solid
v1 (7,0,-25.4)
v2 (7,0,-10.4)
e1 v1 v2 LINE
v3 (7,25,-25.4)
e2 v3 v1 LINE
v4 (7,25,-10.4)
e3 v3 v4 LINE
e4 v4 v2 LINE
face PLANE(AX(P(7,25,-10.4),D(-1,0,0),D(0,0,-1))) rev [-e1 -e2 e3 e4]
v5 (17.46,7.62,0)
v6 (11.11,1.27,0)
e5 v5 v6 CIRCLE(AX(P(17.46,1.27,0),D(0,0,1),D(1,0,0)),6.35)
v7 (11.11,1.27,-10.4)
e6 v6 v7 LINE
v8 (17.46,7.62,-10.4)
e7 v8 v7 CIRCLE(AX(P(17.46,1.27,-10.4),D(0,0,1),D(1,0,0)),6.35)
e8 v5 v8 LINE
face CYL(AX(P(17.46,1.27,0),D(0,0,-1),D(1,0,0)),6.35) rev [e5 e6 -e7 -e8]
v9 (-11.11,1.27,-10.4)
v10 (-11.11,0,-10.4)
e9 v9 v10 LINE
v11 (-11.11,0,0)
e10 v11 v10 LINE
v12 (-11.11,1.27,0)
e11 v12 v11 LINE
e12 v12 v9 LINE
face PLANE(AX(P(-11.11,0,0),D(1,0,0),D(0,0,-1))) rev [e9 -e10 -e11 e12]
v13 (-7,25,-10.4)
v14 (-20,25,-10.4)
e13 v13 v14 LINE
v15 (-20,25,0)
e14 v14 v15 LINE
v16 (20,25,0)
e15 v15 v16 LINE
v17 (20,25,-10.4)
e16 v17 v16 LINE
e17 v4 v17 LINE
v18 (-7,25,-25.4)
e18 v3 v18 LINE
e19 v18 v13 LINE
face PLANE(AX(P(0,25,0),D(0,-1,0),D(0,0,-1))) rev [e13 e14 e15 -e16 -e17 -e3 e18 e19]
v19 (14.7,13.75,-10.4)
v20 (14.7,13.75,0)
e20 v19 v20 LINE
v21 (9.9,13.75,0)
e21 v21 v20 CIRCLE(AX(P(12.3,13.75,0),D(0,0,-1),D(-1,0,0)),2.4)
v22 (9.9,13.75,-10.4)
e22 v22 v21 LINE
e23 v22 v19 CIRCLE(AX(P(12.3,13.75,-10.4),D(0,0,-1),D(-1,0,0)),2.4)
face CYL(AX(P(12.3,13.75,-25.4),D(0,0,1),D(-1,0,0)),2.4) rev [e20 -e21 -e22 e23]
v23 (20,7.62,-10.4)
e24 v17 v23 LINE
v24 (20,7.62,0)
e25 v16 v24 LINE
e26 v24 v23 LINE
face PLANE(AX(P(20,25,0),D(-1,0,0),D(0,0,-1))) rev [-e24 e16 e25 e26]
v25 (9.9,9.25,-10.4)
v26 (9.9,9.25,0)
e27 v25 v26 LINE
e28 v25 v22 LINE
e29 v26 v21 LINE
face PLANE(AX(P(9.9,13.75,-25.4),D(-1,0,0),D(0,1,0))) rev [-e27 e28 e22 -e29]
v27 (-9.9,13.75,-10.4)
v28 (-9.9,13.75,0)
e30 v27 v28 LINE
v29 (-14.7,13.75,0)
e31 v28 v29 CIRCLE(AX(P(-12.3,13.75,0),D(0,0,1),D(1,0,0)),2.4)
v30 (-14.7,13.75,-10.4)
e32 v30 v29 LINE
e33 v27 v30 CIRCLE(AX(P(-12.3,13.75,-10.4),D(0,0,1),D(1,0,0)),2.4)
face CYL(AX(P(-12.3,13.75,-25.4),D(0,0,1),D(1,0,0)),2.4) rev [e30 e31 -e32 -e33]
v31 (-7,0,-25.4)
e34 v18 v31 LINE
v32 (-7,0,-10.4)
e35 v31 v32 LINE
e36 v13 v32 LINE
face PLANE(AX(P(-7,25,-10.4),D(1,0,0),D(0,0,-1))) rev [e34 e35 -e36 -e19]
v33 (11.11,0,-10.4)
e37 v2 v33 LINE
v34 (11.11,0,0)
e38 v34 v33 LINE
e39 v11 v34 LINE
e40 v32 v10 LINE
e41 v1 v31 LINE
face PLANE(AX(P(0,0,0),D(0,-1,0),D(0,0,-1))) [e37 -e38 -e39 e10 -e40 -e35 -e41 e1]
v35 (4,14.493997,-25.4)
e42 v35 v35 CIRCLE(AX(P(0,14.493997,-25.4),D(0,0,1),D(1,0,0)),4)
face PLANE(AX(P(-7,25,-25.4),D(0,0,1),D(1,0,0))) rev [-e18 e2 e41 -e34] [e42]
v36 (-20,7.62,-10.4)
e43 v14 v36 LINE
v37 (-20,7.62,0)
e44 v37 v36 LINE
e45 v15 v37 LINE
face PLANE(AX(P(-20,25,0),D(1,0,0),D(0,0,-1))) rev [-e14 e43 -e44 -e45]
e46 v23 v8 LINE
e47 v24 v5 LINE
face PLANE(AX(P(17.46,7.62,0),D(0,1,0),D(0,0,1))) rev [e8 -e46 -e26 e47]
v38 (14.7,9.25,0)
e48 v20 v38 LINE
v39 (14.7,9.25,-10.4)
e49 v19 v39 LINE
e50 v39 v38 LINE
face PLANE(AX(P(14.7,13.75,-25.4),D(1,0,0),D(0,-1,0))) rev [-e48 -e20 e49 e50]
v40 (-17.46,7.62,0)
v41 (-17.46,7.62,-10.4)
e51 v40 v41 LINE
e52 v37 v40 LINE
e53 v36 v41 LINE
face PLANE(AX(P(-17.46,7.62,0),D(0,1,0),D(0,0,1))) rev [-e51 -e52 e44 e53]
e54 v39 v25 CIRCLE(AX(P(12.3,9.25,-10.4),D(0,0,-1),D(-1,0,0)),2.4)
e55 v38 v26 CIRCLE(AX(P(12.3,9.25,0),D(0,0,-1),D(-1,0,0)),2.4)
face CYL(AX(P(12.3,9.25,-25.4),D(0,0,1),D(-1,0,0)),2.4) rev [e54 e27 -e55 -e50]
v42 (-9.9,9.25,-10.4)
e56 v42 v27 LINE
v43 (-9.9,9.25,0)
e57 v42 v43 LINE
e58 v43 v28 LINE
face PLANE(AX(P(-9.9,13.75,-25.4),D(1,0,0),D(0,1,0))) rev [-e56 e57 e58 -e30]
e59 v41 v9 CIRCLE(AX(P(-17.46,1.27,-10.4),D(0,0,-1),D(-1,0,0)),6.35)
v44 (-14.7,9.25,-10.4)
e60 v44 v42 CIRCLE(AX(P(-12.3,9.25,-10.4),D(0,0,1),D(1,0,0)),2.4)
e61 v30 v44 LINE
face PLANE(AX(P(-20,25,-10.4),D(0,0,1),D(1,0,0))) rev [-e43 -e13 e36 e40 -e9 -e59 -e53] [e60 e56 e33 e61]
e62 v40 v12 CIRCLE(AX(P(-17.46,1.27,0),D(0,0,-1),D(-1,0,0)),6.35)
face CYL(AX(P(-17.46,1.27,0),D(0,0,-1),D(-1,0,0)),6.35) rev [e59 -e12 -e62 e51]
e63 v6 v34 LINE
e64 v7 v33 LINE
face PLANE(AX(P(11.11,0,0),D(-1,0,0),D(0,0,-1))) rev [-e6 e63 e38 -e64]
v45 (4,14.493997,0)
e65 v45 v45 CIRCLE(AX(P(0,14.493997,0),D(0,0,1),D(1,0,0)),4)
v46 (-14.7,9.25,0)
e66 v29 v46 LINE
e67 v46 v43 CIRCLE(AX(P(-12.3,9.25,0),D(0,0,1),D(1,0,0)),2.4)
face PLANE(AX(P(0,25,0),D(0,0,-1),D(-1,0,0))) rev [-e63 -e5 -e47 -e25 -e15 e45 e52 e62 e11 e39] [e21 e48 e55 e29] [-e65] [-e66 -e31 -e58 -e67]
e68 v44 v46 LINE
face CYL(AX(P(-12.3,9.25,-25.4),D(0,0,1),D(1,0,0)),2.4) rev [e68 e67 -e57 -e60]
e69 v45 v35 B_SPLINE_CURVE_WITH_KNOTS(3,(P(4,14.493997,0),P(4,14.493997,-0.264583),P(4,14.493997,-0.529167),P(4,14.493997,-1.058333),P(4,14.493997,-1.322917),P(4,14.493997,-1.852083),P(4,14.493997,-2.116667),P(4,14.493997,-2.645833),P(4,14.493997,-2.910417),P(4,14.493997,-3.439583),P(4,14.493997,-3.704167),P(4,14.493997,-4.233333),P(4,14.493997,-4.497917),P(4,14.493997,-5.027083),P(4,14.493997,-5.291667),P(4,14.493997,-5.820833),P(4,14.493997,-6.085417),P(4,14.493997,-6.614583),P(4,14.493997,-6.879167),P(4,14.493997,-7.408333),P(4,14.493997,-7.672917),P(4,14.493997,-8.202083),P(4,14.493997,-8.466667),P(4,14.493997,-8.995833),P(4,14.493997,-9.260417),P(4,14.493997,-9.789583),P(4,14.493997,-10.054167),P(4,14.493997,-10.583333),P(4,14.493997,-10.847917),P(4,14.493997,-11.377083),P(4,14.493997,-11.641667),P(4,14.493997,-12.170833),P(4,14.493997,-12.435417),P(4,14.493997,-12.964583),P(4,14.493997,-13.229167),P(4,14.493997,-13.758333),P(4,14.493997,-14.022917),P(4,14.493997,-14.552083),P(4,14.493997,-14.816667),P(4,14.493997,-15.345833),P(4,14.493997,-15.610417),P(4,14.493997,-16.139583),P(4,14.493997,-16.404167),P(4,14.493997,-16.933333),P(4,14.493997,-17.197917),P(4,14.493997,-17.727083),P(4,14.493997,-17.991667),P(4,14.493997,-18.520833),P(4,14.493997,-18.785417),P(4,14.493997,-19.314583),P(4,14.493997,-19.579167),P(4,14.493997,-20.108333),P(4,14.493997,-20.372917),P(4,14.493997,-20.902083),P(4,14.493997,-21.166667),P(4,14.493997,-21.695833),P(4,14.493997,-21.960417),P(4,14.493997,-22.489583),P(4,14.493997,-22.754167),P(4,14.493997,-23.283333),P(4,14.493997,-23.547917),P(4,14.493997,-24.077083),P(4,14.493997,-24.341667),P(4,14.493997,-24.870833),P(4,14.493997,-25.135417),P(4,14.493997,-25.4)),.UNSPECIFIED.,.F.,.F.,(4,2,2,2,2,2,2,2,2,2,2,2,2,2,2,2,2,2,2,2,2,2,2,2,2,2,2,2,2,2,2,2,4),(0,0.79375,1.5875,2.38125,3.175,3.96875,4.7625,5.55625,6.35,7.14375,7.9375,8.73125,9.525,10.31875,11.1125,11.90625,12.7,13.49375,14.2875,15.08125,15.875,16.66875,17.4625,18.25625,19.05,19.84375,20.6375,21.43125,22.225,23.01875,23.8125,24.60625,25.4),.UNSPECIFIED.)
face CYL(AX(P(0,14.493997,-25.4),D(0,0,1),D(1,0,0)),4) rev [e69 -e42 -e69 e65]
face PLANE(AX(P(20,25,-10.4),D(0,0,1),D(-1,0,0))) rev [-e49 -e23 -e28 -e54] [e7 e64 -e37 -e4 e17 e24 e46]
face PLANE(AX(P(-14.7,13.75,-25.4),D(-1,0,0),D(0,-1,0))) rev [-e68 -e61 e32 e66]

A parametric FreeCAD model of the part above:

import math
import FreeCAD as App
import Part
import Sketcher

V = App.Vector
Q = App.Units.Quantity

doc = App.newDocument("Part")
body = doc.addObject("PartDesign::Body", "Body")

# Sketch on XZ plane
sketch1 = body.newObject("Sketcher::SketchObject", "Sketch")
sketch1.AttachmentSupport = (doc.getObject("XZ_Plane"), [""])
sketch1.MapMode = "FlatFace"
sketch1.addGeometry(Part.LineSegment(V(-20, 0, 0), V(0, 0, 0)), False)
sketch1.addGeometry(Part.LineSegment(V(0, 0, 0), V(0, -25, 0)), False)
sketch1.addGeometry(Part.LineSegment(V(0, -25, 0), V(-7, -25, 0)), False)
sketch1.addGeometry(Part.LineSegment(V(-7, -25, 0), V(-7, -10, 0)), False)
sketch1.addGeometry(Part.LineSegment(V(-7, -10, 0), V(-20, -10, 0)), False)
sketch1.addGeometry(Part.LineSegment(V(-20, -10, 0), V(-20, 0, 0)), False)
sketch1.addConstraint(Sketcher.Constraint("Coincident", 0, 2, 1, 1))
sketch1.addConstraint(Sketcher.Constraint("Coincident", 1, 2, 2, 1))
sketch1.addConstraint(Sketcher.Constraint("Coincident", 2, 2, 3, 1))
sketch1.addConstraint(Sketcher.Constraint("Coincident", 3, 2, 4, 1))
sketch1.addConstraint(Sketcher.Constraint("Coincident", 4, 2, 5, 1))
sketch1.addConstraint(Sketcher.Constraint("Coincident", 5, 2, 0, 1))
sketch1.addConstraint(Sketcher.Constraint("Horizontal", 0))
sketch1.addConstraint(Sketcher.Constraint("Vertical", 1))
sketch1.addConstraint(Sketcher.Constraint("Horizontal", 2))
sketch1.addConstraint(Sketcher.Constraint("Vertical", 3))
sketch1.addConstraint(Sketcher.Constraint("Horizontal", 4))
sketch1.addConstraint(Sketcher.Constraint("Vertical", 5))
sketch1.addConstraint(Sketcher.Constraint("Coincident", 0, 2, -1, 1))
sketch1.addConstraint(Sketcher.Constraint("DistanceX", 0, 1, 0, 2, Q("20 mm")))
sketch1.addConstraint(Sketcher.Constraint("DistanceX", 2, 2, 2, 1, Q("7 mm")))
sketch1.addConstraint(Sketcher.Constraint("DistanceY", 3, 1, 3, 2, Q("15 mm")))
sketch1.addConstraint(Sketcher.Constraint("DistanceY", 1, 2, 1, 1, Q("25.4 mm")))
pad1 = body.newObject("PartDesign::Pad", "Pad")
pad1.Profile = sketch1
pad1.Length = 25
pad1.Reversed = True

# Sketch on XY plane
sketch2 = body.newObject("Sketcher::SketchObject", "Sketch001")
sketch2.AttachmentSupport = (doc.getObject("XY_Plane"), [""])
sketch2.MapMode = "FlatFace"
sketch2.addGeometry(Part.LineSegment(V(-9.9, 9.2, 0), V(-9.9, 13.8, 0)), False)
sketch2.addGeometry(Part.ArcOfCircle(Part.Circle(V(-12.3, 13.8, 0), V(0, 0, 1), 2.4), math.radians(0), math.radians(180)), False)
sketch2.addGeometry(Part.LineSegment(V(-14.7, 13.8, 0), V(-14.7, 9.2, 0)), False)
sketch2.addGeometry(Part.ArcOfCircle(Part.Circle(V(-12.3, 9.2, 0), V(0, 0, 1), 2.4), math.radians(180), math.radians(360)), False)
sketch2.addConstraint(Sketcher.Constraint("Tangent", 0, 2, 1, 1))
sketch2.addConstraint(Sketcher.Constraint("Tangent", 1, 2, 2, 1))
sketch2.addConstraint(Sketcher.Constraint("Tangent", 2, 2, 3, 1))
sketch2.addConstraint(Sketcher.Constraint("Tangent", 3, 2, 0, 1))
sketch2.addConstraint(Sketcher.Constraint("Vertical", 0))
sketch2.addConstraint(Sketcher.Constraint("Vertical", 2))
sketch2.addConstraint(Sketcher.Constraint("Radius", 1, Q("2.4 mm")))
sketch2.addConstraint(Sketcher.Constraint("DistanceY", 0, 1, 0, 2, Q("4.5 mm")))
sketch2.addConstraint(Sketcher.Constraint("DistanceX", 1, 3, -1, 1, Q("12.3 mm")))
sketch2.addConstraint(Sketcher.Constraint("DistanceY", -1, 1, 1, 3, Q("13.75 mm")))
pocket1 = body.newObject("PartDesign::Pocket", "Pocket")
pocket1.Profile = sketch2
pocket1.Type = "ThroughAll"

# Sketch on XY plane
sketch3 = body.newObject("Sketcher::SketchObject", "Sketch002")
sketch3.AttachmentSupport = (doc.getObject("XY_Plane"), [""])
sketch3.MapMode = "FlatFace"
sketch3.addGeometry(Part.Circle(V(0, 14.5, 0), V(0, 0, 1), 4), False)
sketch3.addConstraint(Sketcher.Constraint("PointOnObject", 0, 3, -2))
sketch3.addConstraint(Sketcher.Constraint("Diameter", 0, Q("8 mm")))
sketch3.addConstraint(Sketcher.Constraint("DistanceY", -1, 1, 0, 3, Q("14.493997 mm")))
pocket2 = body.newObject("PartDesign::Pocket", "Pocket001")
pocket2.Profile = sketch3
pocket2.Type = "ThroughAll"

# Sketch on XY plane
sketch4 = body.newObject("Sketcher::SketchObject", "Sketch003")
sketch4.AttachmentSupport = (doc.getObject("XY_Plane"), [""])
sketch4.MapMode = "FlatFace"
sketch4.AttachmentOffset = App.Placement(V(0, 0, -10.4), App.Rotation())
sketch4.addGeometry(Part.LineSegment(V(-11.1, 1.3, 0), V(-11.1, 0, 0)), False)
sketch4.addGeometry(Part.LineSegment(V(-11.1, 0, 0), V(-20, 0, 0)), False)
sketch4.addGeometry(Part.LineSegment(V(-20, 0, 0), V(-20, 7.6, 0)), False)
sketch4.addGeometry(Part.LineSegment(V(-20, 7.6, 0), V(-17.5, 7.6, 0)), False)
sketch4.addGeometry(Part.ArcOfCircle(Part.Circle(V(-17.5, 1.3, 0), V(0, 0, 1), 6.3), math.radians(0), math.radians(90)), False)
sketch4.addConstraint(Sketcher.Constraint("Coincident", 0, 2, 1, 1))
sketch4.addConstraint(Sketcher.Constraint("Coincident", 1, 2, 2, 1))
sketch4.addConstraint(Sketcher.Constraint("Coincident", 2, 2, 3, 1))
sketch4.addConstraint(Sketcher.Constraint("Tangent", 3, 2, 4, 2))
sketch4.addConstraint(Sketcher.Constraint("Tangent", 4, 1, 0, 1))
sketch4.addConstraint(Sketcher.Constraint("Vertical", 0))
sketch4.addConstraint(Sketcher.Constraint("Horizontal", 1))
sketch4.addConstraint(Sketcher.Constraint("Vertical", 2))
sketch4.addConstraint(Sketcher.Constraint("Horizontal", 3))
sketch4.addConstraint(Sketcher.Constraint("PointOnObject", 0, 2, -1))
sketch4.addConstraint(Sketcher.Constraint("Radius", 4, Q("6.35 mm")))
sketch4.addConstraint(Sketcher.Constraint("DistanceX", 1, 2, -1, 1, Q("20 mm")))
sketch4.addConstraint(Sketcher.Constraint("DistanceX", 1, 2, 1, 1, Q("8.89 mm")))
sketch4.addConstraint(Sketcher.Constraint("DistanceY", 0, 2, 0, 1, Q("1.27 mm")))
pocket3 = body.newObject("PartDesign::Pocket", "Pocket002")
pocket3.Profile = sketch4
pocket3.Type = "ThroughAll"
pocket3.Reversed = True
body2 = doc.addObject("PartDesign::Body", "Body001")
doc.recompute()

body2.BaseFeature = body
doc.recompute()

mirroring = doc.addObject("Part::Mirroring", "Mirroring")
mirroring.Source = body
mirroring.Base = V(0, 0, 0)
mirroring.Normal = V(1, 0, 0)
body3 = doc.addObject("PartDesign::Body", "Body002")
body3.BaseFeature = mirroring
boolean = body2.newObject("PartDesign::Boolean", "Boolean")
boolean.Type = "Fuse"
boolean.addObjects([body3])
doc.recompute()
mirroring.Visibility = False

doc.recompute()
